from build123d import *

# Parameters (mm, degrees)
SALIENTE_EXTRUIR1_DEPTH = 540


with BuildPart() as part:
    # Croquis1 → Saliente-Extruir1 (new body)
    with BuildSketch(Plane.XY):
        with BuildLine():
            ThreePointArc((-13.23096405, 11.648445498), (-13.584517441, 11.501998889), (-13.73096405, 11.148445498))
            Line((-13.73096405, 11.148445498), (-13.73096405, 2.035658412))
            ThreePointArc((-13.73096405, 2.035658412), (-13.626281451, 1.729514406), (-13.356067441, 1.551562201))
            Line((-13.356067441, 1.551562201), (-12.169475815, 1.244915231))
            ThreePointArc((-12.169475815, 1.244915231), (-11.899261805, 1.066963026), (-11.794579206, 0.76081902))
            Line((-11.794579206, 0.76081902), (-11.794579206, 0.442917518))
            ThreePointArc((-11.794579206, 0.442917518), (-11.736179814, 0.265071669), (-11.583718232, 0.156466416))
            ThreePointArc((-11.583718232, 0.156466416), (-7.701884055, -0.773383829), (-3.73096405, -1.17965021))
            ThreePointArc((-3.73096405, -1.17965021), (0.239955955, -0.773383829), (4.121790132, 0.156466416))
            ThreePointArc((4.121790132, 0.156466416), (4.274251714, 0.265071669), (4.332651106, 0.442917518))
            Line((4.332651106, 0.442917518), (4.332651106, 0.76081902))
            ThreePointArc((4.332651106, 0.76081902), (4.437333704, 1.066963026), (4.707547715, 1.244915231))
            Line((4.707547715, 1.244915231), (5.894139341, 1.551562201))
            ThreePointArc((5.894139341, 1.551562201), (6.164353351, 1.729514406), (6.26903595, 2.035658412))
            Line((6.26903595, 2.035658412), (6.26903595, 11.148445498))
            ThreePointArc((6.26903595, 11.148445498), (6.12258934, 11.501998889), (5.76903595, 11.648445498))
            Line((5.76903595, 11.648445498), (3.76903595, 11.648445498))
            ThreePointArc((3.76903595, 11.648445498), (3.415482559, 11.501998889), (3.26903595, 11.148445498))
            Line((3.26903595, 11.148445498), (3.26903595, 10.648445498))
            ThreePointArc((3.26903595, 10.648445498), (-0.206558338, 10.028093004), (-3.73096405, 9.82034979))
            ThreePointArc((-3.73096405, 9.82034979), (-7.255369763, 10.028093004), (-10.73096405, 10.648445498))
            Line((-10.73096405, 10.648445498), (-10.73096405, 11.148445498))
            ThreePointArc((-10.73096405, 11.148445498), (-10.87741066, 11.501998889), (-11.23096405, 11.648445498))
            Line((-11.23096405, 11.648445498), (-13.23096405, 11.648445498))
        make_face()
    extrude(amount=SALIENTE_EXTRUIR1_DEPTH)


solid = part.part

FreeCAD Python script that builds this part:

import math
import FreeCAD as App
import Part
import Sketcher

V = App.Vector
Q = App.Units.Quantity

doc = App.newDocument("Part")
params = doc.addObject("Spreadsheet::Sheet", "Params")
for row, (alias, value) in enumerate([
    ("sketch1_radius", "30 mm"),
    ("sketch1_radius2", "0.5 mm"),
    ("sketch1_radius3", "0.3 mm"),
    ("sketch1_width", "2 mm"),
    ("sketch1_height", "0.5 mm"),
    ("pad1_length", "540 mm"),
], start=1):
    params.set(f"A{row}", alias)
    params.set(f"B{row}", "=" + value)
    params.setAlias(f"B{row}", alias)

body = doc.addObject("PartDesign::Body", "Body")

# Sketch on XY plane
sketch1 = doc.addObject("Sketcher::SketchObject", "Sketch")
body.addObject(sketch1)
sketch1.AttachmentSupport = (doc.XY_Plane, [""])
sketch1.MapMode = "FlatFace"
sketch1.addGeometry([
    Part.ArcOfCircle(Part.Circle(V(-13.23, 11.15, 0), V(0, 0, 1), 0.5), math.radians(90), math.radians(180)),  # 0
    Part.LineSegment(V(-13.73, 11.15, 0), V(-13.73, 2.04, 0)),  # 1
    Part.ArcOfCircle(Part.Circle(V(-13.23, 2.04, 0), V(0, 0, 1), 0.5), math.radians(180), math.radians(256)),  # 2
    Part.LineSegment(V(-13.36, 1.55, 0), V(-12.17, 1.24, 0)),  # 3
    Part.ArcOfCircle(Part.Circle(V(-12.29, 0.76, 0), V(0, 0, 1), 0.5), math.radians(0), math.radians(76)),  # 4
    Part.LineSegment(V(-11.79, 0.76, 0), V(-11.79, 0.44, 0)),  # 5
    Part.ArcOfCircle(Part.Circle(V(-11.49, 0.44, 0), V(0, 0, 1), 0.3), math.radians(-180), math.radians(-107)),  # 6
    Part.ArcOfCircle(Part.Circle(V(-2.67, 28.8, 0), V(0, 0, 1), 30), math.radians(-107.29), math.radians(-92.03)),  # 7
    Part.ArcOfCircle(Part.Circle(V(-4.79, 28.8, 0), V(0, 0, 1), 30), math.radians(-87.97), math.radians(-72.71)),  # 8
    Part.ArcOfCircle(Part.Circle(V(4.03, 0.44, 0), V(0, 0, 1), 0.3), math.radians(-73), math.radians(0)),  # 9
    Part.LineSegment(V(4.33, 0.44, 0), V(4.33, 0.76, 0)),  # 10
    Part.ArcOfCircle(Part.Circle(V(4.83, 0.76, 0), V(0, 0, 1), 0.5), math.radians(104), math.radians(180)),  # 11
    Part.LineSegment(V(4.71, 1.24, 0), V(5.89, 1.55, 0)),  # 12
    Part.ArcOfCircle(Part.Circle(V(5.77, 2.04, 0), V(0, 0, 1), 0.5), math.radians(-76), math.radians(0)),  # 13
    Part.LineSegment(V(6.27, 2.04, 0), V(6.27, 11.15, 0)),  # 14
    Part.ArcOfCircle(Part.Circle(V(5.77, 11.15, 0), V(0, 0, 1), 0.5), math.radians(0), math.radians(90)),  # 15
    Part.LineSegment(V(5.77, 11.65, 0), V(3.77, 11.65, 0)),  # 16
    Part.ArcOfCircle(Part.Circle(V(3.77, 11.15, 0), V(0, 0, 1), 0.5), math.radians(90), math.radians(180)),  # 17
    Part.LineSegment(V(3.27, 11.15, 0), V(3.27, 10.65, 0)),  # 18
    Part.ArcOfCircle(Part.Circle(V(-3.73, 39.82, 0), V(0, 0, 1), 30), math.radians(-90), math.radians(-76.51)),  # 19
    Part.ArcOfCircle(Part.Circle(V(-3.73, 39.82, 0), V(0, 0, 1), 30), math.radians(-103.49), math.radians(-90)),  # 20
    Part.LineSegment(V(-10.73, 10.65, 0), V(-10.73, 11.15, 0)),  # 21
    Part.ArcOfCircle(Part.Circle(V(-11.23, 11.15, 0), V(0, 0, 1), 0.5), math.radians(0), math.radians(90)),  # 22
    Part.LineSegment(V(-11.23, 11.65, 0), V(-13.23, 11.65, 0)),  # 23
], False)
sketch1.addConstraint([
    Sketcher.Constraint("Tangent", 0, 2, 1, 1),
    Sketcher.Constraint("Tangent", 1, 2, 2, 1),
    Sketcher.Constraint("Tangent", 2, 2, 3, 1),
    Sketcher.Constraint("Tangent", 3, 2, 4, 2),
    Sketcher.Constraint("Tangent", 4, 1, 5, 1),
    Sketcher.Constraint("Tangent", 5, 2, 6, 1),
    Sketcher.Constraint("Tangent", 6, 2, 7, 1),
    Sketcher.Constraint("Coincident", 7, 2, 8, 1),
    Sketcher.Constraint("Tangent", 8, 2, 9, 1),
    Sketcher.Constraint("Tangent", 9, 2, 10, 1),
    Sketcher.Constraint("Tangent", 10, 2, 11, 2),
    Sketcher.Constraint("Tangent", 11, 1, 12, 1),
    Sketcher.Constraint("Tangent", 12, 2, 13, 1),
    Sketcher.Constraint("Tangent", 13, 2, 14, 1),
    Sketcher.Constraint("Tangent", 14, 2, 15, 1),
    Sketcher.Constraint("Tangent", 15, 2, 16, 1),
    Sketcher.Constraint("Tangent", 16, 2, 17, 1),
    Sketcher.Constraint("Tangent", 17, 2, 18, 1),
    Sketcher.Constraint("Coincident", 18, 2, 19, 2),
    Sketcher.Constraint("Tangent", 19, 1, 20, 2),
    Sketcher.Constraint("Coincident", 20, 1, 21, 1),
    Sketcher.Constraint("Tangent", 21, 2, 22, 1),
    Sketcher.Constraint("Tangent", 22, 2, 23, 1),
    Sketcher.Constraint("Tangent", 23, 2, 0, 1),
    Sketcher.Constraint("Vertical", 1),
    Sketcher.Constraint("Vertical", 5),
    Sketcher.Constraint("Vertical", 10),
    Sketcher.Constraint("Vertical", 14),
    Sketcher.Constraint("Horizontal", 16),
    Sketcher.Constraint("Vertical", 18),
    Sketcher.Constraint("Vertical", 21),
    Sketcher.Constraint("Horizontal", 23),
    Sketcher.Constraint("Equal", 0, 2),
    Sketcher.Constraint("Equal", 2, 4),
    Sketcher.Constraint("Equal", 7, 8),
    Sketcher.Constraint("Equal", 6, 9),
    Sketcher.Constraint("Equal", 4, 11),
    Sketcher.Constraint("Equal", 11, 13),
    Sketcher.Constraint("Equal", 13, 15),
    Sketcher.Constraint("Equal", 15, 17),
    Sketcher.Constraint("Equal", 8, 19),
    Sketcher.Constraint("Equal", 19, 20),
    Sketcher.Constraint("Equal", 17, 22),
    Sketcher.Constraint("Horizontal", 7, 3, 8, 3),
    Sketcher.Constraint("Horizontal", 6, 3, 9, 3),
    Sketcher.Constraint("Horizontal", 4, 3, 11, 3),
    Sketcher.Constraint("Horizontal", 2, 3, 13, 3),
    Sketcher.Constraint("Horizontal", 0, 3, 15, 3),
    Sketcher.Constraint("Horizontal", 3, 2, 11, 1),
    Sketcher.Constraint("Horizontal", 18, 2, 20, 1),
    Sketcher.Constraint("Vertical", 20, 3, 7, 2),
    Sketcher.Constraint("Vertical", 7, 2, 19, 1),
    Sketcher.Constraint("Radius", 7, Q("30 mm")),
    Sketcher.Constraint("Radius", 0, Q("0.5 mm")),
    Sketcher.Constraint("Radius", 6, Q("0.3 mm")),
    Sketcher.Constraint("DistanceX", 16, 2, 16, 1, Q("2 mm")),
    Sketcher.Constraint("DistanceY", 18, 2, 18, 1, Q("0.5 mm")),
    Sketcher.Constraint("DistanceX", 2, 3, 13, 3, Q("19 mm")),
    Sketcher.Constraint("DistanceY", 5, 2, 5, 1, Q("0.317902 mm")),
    Sketcher.Constraint("DistanceY", 1, 2, 1, 1, Q("9.112787 mm")),
    Sketcher.Constraint("DistanceY", -1, 1, 2, 3, Q("2.035658 mm")),
    Sketcher.Constraint("DistanceX", 4, 3, -1, 1, Q("12.294579 mm")),
    Sketcher.Constraint("DistanceY", -1, 1, 4, 3, Q("0.760819 mm")),
    Sketcher.Constraint("DistanceX", -1, 1, 9, 3, Q("4.032651 mm")),
    Sketcher.Constraint("DistanceX", 6, 2, -1, 1, Q("11.583718 mm")),
])
sketch1.setExpression("Constraints[52]", "Params.sketch1_radius")
sketch1.setExpression("Constraints[53]", "Params.sketch1_radius2")
sketch1.setExpression("Constraints[54]", "Params.sketch1_radius3")
sketch1.setExpression("Constraints[55]", "Params.sketch1_width")
sketch1.setExpression("Constraints[56]", "Params.sketch1_height")
pad1 = doc.addObject("PartDesign::Pad", "Pad")
body.addObject(pad1)
pad1.Profile = sketch1
pad1.setExpression("Length", "Params.pad1_length")

doc.recompute()
